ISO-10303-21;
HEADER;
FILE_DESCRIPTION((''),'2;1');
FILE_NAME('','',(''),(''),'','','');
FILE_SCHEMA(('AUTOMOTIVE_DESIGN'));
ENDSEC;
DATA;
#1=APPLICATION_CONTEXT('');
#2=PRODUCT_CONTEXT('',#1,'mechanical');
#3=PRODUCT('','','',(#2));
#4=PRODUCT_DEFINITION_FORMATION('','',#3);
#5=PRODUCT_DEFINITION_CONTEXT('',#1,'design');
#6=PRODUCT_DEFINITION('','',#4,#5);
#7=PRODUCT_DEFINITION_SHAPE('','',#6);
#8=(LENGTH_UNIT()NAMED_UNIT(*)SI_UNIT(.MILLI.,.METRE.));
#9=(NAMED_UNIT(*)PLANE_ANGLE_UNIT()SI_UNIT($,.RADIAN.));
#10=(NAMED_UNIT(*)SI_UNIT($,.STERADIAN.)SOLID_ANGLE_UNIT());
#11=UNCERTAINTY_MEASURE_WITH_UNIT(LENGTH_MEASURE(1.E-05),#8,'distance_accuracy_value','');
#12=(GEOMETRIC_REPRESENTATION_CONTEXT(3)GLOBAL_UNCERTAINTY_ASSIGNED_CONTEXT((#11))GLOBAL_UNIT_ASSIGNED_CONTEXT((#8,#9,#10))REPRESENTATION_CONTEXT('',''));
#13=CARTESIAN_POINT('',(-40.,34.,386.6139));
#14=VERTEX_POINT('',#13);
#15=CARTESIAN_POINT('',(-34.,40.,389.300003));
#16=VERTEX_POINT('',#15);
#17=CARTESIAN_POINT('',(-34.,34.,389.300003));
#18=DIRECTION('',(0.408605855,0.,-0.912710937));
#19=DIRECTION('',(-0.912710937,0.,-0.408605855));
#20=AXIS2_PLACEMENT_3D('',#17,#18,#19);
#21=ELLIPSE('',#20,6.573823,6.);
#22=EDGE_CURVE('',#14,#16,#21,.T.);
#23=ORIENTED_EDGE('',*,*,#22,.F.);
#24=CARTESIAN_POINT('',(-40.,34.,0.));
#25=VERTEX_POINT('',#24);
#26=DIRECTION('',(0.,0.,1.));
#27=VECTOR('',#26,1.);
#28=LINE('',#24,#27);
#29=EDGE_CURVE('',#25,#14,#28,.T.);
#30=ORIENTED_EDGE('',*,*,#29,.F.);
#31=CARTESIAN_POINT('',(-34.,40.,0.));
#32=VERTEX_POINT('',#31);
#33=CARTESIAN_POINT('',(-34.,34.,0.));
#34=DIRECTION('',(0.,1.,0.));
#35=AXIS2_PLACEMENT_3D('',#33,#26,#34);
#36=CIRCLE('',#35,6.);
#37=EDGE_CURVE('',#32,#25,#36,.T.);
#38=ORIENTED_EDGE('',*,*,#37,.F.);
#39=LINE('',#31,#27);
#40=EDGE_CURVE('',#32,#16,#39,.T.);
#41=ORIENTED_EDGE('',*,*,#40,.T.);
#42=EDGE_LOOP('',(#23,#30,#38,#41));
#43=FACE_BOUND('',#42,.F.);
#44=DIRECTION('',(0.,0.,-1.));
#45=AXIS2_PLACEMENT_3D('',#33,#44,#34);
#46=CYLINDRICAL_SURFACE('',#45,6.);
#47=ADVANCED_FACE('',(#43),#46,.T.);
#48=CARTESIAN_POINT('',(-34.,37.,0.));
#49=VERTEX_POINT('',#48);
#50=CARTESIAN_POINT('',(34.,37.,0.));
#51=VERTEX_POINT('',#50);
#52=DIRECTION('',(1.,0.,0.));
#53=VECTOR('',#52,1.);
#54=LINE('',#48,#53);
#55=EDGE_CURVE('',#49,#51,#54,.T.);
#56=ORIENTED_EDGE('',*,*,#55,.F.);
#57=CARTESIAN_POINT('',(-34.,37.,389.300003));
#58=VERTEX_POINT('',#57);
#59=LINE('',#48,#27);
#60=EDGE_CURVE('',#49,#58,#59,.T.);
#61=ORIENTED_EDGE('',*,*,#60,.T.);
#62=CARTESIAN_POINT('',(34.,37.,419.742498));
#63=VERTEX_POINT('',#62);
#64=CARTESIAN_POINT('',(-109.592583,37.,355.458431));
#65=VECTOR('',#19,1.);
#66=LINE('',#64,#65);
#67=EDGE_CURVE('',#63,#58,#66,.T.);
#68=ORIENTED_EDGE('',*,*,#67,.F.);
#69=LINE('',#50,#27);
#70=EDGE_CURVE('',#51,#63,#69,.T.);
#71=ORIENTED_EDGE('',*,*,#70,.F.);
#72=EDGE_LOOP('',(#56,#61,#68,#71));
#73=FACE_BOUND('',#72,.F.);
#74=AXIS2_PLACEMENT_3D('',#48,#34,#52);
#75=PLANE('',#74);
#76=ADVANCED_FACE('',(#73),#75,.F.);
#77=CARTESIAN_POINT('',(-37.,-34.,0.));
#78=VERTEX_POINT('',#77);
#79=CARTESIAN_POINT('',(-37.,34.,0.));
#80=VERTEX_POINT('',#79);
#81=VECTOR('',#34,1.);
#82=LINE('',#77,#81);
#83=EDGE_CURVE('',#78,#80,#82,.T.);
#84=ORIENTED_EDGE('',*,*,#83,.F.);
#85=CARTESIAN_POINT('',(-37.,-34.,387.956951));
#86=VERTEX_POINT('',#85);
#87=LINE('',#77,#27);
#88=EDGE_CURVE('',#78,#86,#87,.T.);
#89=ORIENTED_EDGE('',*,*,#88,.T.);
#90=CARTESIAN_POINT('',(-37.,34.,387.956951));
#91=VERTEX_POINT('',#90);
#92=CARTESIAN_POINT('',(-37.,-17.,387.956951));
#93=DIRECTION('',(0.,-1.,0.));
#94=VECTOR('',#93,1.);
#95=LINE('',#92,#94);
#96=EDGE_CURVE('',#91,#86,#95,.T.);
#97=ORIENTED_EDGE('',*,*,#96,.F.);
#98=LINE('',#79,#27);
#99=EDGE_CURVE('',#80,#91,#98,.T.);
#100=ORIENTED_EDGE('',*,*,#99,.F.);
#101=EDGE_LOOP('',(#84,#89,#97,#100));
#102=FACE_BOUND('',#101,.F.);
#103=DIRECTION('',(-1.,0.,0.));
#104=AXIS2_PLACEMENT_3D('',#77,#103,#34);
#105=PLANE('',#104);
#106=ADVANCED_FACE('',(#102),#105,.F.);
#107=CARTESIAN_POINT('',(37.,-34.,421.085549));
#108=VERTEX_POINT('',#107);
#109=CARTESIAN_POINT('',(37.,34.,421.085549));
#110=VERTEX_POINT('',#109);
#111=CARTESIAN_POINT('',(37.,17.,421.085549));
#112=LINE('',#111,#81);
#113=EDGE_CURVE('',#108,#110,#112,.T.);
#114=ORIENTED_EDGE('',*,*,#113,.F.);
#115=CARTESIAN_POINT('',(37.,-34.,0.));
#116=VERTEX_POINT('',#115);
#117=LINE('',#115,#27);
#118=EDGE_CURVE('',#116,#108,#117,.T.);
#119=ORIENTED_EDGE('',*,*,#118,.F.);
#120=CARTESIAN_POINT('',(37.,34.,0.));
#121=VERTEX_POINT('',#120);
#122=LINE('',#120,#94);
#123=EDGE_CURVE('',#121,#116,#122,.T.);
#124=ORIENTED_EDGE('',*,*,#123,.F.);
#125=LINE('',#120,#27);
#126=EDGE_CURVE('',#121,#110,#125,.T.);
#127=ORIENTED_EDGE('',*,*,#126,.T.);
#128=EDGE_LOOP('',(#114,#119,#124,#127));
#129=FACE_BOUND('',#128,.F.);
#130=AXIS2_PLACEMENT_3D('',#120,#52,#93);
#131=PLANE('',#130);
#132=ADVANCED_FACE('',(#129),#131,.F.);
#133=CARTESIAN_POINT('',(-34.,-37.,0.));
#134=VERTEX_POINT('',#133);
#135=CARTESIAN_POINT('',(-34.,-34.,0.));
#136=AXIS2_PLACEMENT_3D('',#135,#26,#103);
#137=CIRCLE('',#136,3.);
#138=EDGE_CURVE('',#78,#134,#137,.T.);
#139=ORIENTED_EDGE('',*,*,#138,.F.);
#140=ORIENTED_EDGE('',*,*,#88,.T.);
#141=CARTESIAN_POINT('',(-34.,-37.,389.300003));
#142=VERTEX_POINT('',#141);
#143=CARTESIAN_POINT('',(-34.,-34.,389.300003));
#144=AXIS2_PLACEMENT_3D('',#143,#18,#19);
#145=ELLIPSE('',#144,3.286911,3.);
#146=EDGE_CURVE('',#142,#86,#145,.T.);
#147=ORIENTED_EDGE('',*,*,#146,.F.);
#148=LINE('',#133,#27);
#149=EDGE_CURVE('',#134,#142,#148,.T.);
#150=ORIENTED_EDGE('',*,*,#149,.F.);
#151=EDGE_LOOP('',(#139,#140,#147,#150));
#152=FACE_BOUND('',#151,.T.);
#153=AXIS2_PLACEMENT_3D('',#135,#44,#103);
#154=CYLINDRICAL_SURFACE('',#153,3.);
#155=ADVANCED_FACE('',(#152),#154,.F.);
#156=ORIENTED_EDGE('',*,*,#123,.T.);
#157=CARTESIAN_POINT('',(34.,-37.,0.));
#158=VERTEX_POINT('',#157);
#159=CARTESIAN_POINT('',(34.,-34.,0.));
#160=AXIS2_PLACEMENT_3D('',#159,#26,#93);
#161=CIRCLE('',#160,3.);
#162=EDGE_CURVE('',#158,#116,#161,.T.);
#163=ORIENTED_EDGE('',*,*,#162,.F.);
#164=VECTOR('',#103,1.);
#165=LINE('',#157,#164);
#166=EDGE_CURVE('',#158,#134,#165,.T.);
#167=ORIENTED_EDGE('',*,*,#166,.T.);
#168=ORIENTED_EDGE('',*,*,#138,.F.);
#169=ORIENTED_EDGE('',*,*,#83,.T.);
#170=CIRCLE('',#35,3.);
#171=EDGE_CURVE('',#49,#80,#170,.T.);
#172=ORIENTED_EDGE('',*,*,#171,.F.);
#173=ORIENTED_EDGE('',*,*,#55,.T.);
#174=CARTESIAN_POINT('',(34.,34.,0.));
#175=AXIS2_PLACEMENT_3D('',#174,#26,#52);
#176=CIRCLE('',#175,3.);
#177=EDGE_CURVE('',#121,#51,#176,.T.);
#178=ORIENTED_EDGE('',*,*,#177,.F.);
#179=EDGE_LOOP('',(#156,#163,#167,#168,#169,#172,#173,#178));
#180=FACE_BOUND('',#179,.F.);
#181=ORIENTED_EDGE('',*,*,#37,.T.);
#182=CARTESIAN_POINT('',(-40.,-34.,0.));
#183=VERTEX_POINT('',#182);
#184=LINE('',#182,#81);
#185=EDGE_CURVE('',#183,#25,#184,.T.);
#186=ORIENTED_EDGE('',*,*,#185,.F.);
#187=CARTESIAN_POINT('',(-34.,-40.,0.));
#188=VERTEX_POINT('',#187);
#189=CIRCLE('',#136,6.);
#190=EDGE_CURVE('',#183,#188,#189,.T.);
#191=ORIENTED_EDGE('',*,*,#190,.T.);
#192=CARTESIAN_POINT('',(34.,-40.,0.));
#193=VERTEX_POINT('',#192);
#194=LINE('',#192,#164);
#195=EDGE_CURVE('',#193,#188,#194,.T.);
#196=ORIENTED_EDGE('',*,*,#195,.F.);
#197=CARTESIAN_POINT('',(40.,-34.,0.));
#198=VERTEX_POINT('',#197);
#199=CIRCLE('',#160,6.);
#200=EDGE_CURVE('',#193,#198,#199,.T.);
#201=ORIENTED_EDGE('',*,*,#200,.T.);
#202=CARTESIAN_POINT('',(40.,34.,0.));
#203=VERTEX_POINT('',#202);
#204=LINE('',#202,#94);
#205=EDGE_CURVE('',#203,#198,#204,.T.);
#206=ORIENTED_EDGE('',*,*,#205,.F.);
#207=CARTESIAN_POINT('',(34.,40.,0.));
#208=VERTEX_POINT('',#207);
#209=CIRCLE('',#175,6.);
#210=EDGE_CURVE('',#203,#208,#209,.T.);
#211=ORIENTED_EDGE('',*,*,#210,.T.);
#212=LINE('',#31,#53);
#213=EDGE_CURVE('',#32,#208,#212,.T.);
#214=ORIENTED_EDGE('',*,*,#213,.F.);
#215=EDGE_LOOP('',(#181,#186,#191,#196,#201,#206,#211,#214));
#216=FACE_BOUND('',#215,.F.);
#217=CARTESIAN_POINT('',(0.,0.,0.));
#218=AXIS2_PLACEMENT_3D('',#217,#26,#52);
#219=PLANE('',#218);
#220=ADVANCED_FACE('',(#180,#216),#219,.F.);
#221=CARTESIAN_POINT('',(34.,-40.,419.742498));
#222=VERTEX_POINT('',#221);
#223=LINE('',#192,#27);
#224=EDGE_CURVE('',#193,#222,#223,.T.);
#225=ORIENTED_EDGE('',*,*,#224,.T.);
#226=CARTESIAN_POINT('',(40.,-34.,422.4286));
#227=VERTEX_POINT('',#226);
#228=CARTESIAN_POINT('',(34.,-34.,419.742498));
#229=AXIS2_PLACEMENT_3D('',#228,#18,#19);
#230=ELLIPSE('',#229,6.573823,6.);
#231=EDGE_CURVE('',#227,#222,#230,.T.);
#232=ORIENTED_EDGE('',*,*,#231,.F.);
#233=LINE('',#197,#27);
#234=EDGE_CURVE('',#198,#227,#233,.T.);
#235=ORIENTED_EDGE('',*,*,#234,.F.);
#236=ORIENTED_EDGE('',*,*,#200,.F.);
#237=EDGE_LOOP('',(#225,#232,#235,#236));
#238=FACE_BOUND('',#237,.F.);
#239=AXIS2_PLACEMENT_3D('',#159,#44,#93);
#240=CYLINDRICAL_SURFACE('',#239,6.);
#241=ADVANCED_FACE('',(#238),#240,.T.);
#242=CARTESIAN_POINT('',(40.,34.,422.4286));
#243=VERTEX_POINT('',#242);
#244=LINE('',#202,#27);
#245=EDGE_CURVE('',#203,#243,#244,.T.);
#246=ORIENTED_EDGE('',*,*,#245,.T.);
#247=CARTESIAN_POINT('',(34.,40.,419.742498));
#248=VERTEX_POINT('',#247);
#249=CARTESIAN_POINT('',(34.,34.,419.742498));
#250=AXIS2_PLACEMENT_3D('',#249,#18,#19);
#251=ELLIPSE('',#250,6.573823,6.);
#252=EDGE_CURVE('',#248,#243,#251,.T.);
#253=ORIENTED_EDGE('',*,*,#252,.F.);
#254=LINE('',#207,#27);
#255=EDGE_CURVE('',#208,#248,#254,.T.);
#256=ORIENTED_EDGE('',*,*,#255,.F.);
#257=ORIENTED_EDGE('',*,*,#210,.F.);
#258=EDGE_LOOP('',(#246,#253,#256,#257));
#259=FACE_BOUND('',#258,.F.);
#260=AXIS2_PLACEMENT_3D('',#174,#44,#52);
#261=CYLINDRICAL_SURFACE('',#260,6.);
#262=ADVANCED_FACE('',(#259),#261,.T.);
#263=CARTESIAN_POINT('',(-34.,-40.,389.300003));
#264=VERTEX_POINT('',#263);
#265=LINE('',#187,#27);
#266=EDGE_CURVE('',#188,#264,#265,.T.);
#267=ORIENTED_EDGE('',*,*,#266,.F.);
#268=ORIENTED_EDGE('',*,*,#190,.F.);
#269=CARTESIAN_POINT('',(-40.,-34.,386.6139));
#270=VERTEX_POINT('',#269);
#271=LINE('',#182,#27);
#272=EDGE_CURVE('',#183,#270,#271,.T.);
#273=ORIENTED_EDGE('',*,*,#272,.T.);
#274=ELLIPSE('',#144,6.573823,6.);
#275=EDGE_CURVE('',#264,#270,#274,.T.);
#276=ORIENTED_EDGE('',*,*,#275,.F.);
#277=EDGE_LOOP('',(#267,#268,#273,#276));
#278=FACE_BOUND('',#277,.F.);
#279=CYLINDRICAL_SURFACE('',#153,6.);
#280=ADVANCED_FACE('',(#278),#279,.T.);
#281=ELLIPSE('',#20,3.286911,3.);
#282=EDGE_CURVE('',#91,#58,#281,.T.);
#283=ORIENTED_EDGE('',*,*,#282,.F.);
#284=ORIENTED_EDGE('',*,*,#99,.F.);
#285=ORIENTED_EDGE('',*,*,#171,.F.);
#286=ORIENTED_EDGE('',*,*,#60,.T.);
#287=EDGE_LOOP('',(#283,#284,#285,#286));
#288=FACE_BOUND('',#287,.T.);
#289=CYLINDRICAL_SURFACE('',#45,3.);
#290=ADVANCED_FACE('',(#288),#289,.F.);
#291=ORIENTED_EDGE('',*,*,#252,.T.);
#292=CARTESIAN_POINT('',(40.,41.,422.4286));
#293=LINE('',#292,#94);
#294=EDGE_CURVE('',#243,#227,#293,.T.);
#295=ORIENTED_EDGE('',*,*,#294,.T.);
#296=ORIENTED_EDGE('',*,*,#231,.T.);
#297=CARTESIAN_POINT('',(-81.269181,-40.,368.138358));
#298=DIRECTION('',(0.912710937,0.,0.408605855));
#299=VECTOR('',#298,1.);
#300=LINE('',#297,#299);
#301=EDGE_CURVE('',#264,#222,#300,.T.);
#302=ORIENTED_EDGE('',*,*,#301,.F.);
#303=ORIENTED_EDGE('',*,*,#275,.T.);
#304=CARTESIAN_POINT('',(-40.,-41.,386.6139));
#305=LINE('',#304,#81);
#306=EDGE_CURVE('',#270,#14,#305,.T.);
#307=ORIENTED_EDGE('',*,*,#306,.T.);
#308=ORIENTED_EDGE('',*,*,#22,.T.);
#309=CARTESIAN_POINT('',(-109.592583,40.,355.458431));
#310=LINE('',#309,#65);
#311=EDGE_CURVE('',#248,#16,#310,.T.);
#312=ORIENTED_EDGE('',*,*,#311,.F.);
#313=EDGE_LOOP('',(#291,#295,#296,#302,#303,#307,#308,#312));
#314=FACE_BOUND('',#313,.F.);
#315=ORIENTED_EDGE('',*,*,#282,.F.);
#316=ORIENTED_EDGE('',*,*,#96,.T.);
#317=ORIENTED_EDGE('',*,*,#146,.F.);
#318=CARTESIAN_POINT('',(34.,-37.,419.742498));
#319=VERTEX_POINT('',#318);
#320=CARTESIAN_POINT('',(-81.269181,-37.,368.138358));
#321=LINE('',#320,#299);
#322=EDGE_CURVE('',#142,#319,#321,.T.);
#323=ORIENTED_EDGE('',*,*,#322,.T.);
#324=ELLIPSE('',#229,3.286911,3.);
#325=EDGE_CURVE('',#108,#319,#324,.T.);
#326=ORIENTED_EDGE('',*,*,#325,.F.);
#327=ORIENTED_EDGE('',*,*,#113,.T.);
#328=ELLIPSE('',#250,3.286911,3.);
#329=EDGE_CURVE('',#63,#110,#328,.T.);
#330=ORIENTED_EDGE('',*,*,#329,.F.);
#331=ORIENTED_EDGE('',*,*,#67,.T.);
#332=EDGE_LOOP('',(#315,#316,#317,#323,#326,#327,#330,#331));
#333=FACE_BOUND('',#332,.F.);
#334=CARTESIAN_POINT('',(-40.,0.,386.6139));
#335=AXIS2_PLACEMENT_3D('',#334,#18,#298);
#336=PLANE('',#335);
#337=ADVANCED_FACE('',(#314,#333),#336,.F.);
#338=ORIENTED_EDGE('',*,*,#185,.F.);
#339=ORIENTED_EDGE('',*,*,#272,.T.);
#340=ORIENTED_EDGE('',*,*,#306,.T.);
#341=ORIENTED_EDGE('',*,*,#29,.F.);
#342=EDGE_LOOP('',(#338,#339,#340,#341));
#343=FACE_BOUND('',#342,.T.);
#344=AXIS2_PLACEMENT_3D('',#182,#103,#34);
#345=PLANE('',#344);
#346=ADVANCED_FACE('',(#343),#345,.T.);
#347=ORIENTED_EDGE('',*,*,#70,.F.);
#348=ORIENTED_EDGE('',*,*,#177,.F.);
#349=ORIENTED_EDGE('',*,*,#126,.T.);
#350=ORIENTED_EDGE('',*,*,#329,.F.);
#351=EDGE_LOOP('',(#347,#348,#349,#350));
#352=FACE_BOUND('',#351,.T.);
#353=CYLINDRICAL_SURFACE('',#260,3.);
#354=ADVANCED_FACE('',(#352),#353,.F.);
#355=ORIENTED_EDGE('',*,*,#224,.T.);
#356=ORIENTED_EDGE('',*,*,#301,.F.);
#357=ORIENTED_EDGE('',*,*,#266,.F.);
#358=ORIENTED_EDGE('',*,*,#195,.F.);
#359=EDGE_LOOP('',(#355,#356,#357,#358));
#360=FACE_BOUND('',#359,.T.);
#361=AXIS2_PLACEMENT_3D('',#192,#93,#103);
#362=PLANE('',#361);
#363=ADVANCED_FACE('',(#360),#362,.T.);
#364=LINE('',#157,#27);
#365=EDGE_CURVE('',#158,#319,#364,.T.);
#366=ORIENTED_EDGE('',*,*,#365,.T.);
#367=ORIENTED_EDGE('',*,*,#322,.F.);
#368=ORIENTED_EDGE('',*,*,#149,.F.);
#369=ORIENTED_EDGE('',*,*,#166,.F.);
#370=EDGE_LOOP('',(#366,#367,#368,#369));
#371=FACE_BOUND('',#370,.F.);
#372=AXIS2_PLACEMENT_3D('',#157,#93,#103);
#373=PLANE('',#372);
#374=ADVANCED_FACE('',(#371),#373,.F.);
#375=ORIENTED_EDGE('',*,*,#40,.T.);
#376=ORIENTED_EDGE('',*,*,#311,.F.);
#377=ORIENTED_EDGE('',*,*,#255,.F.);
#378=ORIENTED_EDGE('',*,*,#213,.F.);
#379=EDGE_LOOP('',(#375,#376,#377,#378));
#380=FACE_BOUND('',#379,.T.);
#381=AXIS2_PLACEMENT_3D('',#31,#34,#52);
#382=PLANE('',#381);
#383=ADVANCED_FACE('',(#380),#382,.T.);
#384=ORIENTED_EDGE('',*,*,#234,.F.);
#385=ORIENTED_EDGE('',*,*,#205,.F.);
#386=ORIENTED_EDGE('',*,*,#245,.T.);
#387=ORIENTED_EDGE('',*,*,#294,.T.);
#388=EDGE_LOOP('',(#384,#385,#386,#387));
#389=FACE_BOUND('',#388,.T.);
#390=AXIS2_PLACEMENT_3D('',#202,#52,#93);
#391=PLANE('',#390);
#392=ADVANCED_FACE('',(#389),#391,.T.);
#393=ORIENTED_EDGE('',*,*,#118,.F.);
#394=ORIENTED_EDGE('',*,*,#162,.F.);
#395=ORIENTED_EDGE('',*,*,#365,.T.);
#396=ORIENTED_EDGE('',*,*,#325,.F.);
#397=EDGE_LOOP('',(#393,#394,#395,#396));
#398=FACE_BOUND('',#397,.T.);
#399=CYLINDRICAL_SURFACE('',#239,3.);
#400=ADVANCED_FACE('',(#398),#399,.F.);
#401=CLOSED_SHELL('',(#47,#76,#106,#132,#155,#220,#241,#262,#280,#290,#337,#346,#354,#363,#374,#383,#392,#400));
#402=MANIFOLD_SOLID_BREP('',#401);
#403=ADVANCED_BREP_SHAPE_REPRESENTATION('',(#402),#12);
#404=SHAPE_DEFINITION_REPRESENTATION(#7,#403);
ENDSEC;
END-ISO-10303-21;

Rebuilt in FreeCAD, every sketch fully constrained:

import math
import FreeCAD as App
import Part
import Sketcher
Q = App.Units.Quantity

doc = App.newDocument("Part")
body = doc.addObject("PartDesign::Body", "Body")

# Sketch on XY plane
sketch1 = body.newObject("Sketcher::SketchObject", "Sketch")
sketch1.AttachmentSupport = (doc.getObject("XY_Plane"), [""])
sketch1.MapMode = "FlatFace"
sketch1.addGeometry([
    Part.LineSegment(App.Vector(-40, 34, 0), App.Vector(-40, -34, 0)),  # 0
    Part.ArcOfCircle(Part.Circle(App.Vector(-34, -34, 0), App.Vector(0, 0, 1), 6), math.radians(180), math.radians(270)),  # 1
    Part.LineSegment(App.Vector(-34, -40, 0), App.Vector(34, -40, 0)),  # 2
    Part.ArcOfCircle(Part.Circle(App.Vector(34, -34, 0), App.Vector(0, 0, 1), 6), math.radians(-90), math.radians(0)),  # 3
    Part.LineSegment(App.Vector(40, -34, 0), App.Vector(40, 34, 0)),  # 4
    Part.ArcOfCircle(Part.Circle(App.Vector(34, 34, 0), App.Vector(0, 0, 1), 6), math.radians(0), math.radians(90)),  # 5
    Part.LineSegment(App.Vector(34, 40, 0), App.Vector(-34, 40, 0)),  # 6
    Part.ArcOfCircle(Part.Circle(App.Vector(-34, 34, 0), App.Vector(0, 0, 1), 6), math.radians(90), math.radians(180)),  # 7
    Part.ArcOfCircle(Part.Circle(App.Vector(-34, 34, 0), App.Vector(0, 0, 1), 3), math.radians(90), math.radians(180)),  # 8
    Part.LineSegment(App.Vector(-34, 37, 0), App.Vector(34, 37, 0)),  # 9
    Part.ArcOfCircle(Part.Circle(App.Vector(34, 34, 0), App.Vector(0, 0, 1), 3), math.radians(0), math.radians(90)),  # 10
    Part.LineSegment(App.Vector(37, 34, 0), App.Vector(37, -34, 0)),  # 11
    Part.ArcOfCircle(Part.Circle(App.Vector(34, -34, 0), App.Vector(0, 0, 1), 3), math.radians(-90), math.radians(0)),  # 12
    Part.LineSegment(App.Vector(34, -37, 0), App.Vector(-34, -37, 0)),  # 13
    Part.ArcOfCircle(Part.Circle(App.Vector(-34, -34, 0), App.Vector(0, 0, 1), 3), math.radians(180), math.radians(270)),  # 14
    Part.LineSegment(App.Vector(-37, -34, 0), App.Vector(-37, 34, 0)),  # 15
], False)
sketch1.addConstraint([
    Sketcher.Constraint("Tangent", 0, 2, 1, 1),
    Sketcher.Constraint("Tangent", 1, 2, 2, 1),
    Sketcher.Constraint("Tangent", 2, 2, 3, 1),
    Sketcher.Constraint("Tangent", 3, 2, 4, 1),
    Sketcher.Constraint("Tangent", 4, 2, 5, 1),
    Sketcher.Constraint("Tangent", 5, 2, 6, 1),
    Sketcher.Constraint("Tangent", 6, 2, 7, 1),
    Sketcher.Constraint("Tangent", 7, 2, 0, 1),
    Sketcher.Constraint("Tangent", 8, 1, 9, 1),
    Sketcher.Constraint("Tangent", 9, 2, 10, 2),
    Sketcher.Constraint("Tangent", 10, 1, 11, 1),
    Sketcher.Constraint("Tangent", 11, 2, 12, 2),
    Sketcher.Constraint("Tangent", 12, 1, 13, 1),
    Sketcher.Constraint("Tangent", 13, 2, 14, 2),
    Sketcher.Constraint("Tangent", 14, 1, 15, 1),
    Sketcher.Constraint("Tangent", 15, 2, 8, 2),
    Sketcher.Constraint("Vertical", 0),
    Sketcher.Constraint("Horizontal", 2),
    Sketcher.Constraint("Vertical", 4),
    Sketcher.Constraint("Horizontal", 6),
    Sketcher.Constraint("Horizontal", 9),
    Sketcher.Constraint("Vertical", 11),
    Sketcher.Constraint("Horizontal", 13),
    Sketcher.Constraint("Vertical", 15),
    Sketcher.Constraint("Coincident", 8, 3, 7, 3),
    Sketcher.Constraint("Coincident", 10, 3, 5, 3),
    Sketcher.Constraint("Coincident", 12, 3, 3, 3),
    Sketcher.Constraint("Equal", 1, 3),
    Sketcher.Constraint("Equal", 3, 5),
    Sketcher.Constraint("Equal", 5, 7),
    Sketcher.Constraint("Equal", 12, 14),
    Sketcher.Constraint("Symmetric", 1, 3, 5, 3, -1, 1),
    Sketcher.Constraint("Equal", 13, 0),
    Sketcher.Constraint("Radius", 1, Q("6 mm")),
    Sketcher.Constraint("Radius", 8, Q("3 mm")),
    Sketcher.Constraint("DistanceX", 0, 2, -1, 1, Q("40 mm")),
])
pad1 = body.newObject("PartDesign::Pad", "Pad")
pad1.Profile = sketch1
pad1.Length = 1000

# Sketch on XZ plane
sketch2 = body.newObject("Sketcher::SketchObject", "Sketch001")
sketch2.AttachmentSupport = (doc.getObject("XZ_Plane"), [""])
sketch2.MapMode = "FlatFace"
sketch2.addGeometry([
    Part.LineSegment(App.Vector(40, 422.4286, 0), App.Vector(-40, 386.6139, 0)),
    Part.LineSegment(App.Vector(-40, 386.6139, 0), App.Vector(-40, 1000, 0)),
    Part.LineSegment(App.Vector(-40, 1000, 0), App.Vector(40, 1000, 0)),
    Part.LineSegment(App.Vector(40, 1000, 0), App.Vector(40, 422.4286, 0)),
], False)
sketch2.addConstraint([
    Sketcher.Constraint("Coincident", 0, 2, 1, 1),
    Sketcher.Constraint("Coincident", 1, 2, 2, 1),
    Sketcher.Constraint("Coincident", 2, 2, 3, 1),
    Sketcher.Constraint("Coincident", 3, 2, 0, 1),
    Sketcher.Constraint("Vertical", 1),
    Sketcher.Constraint("Horizontal", 2),
    Sketcher.Constraint("Vertical", 3),
    Sketcher.Constraint("DistanceX", 2, 1, 2, 2, Q("80 mm")),
    Sketcher.Constraint("DistanceX", 0, 2, -1, 1, Q("40 mm")),
    Sketcher.Constraint("DistanceY", -1, 1, 1, 2, Q("1000 mm")),
    Sketcher.Constraint("DistanceY", 1, 1, 1, 2, Q("613.386 mm")),
    Sketcher.Constraint("Distance", 0, Q("87.651 mm")),
])
pocket1 = body.newObject("PartDesign::Pocket", "Pocket")
pocket1.Profile = sketch2
pocket1.Type = "ThroughAll"
pocket1.Midplane = True

doc.recompute()
